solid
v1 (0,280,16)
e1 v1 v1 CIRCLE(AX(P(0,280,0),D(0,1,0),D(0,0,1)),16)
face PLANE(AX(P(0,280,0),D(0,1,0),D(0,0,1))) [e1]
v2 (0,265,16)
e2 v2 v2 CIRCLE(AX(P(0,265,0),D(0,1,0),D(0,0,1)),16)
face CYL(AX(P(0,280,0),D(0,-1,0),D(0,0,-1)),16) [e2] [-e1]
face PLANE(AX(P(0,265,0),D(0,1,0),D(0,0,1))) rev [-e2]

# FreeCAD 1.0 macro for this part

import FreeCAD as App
import Part
import Sketcher

V = App.Vector
Q = App.Units.Quantity

doc = App.newDocument("Part")
body = doc.addObject("PartDesign::Body", "Body")

sketch1 = body.newObject("Sketcher::SketchObject", "Sketch")
sketch1.AttachmentSupport = (doc.getObject("XZ_Plane"), [""])
sketch1.MapMode = "FlatFace"
sketch1.AttachmentOffset = App.Placement(V(0, 0, -265), App.Rotation())
sketch1.addGeometry(Part.Circle(V(0, 0, 0), V(0, 0, 1), 16), False)
sketch1.addConstraint([
    Sketcher.Constraint("Coincident", 0, 3, -1, 1),
    Sketcher.Constraint("Diameter", 0, Q("32 mm")),
])
pad1 = body.newObject("PartDesign::Pad", "Pad")
pad1.Profile = sketch1
pad1.Length = 15
pad1.Reversed = True

doc.recompute()
